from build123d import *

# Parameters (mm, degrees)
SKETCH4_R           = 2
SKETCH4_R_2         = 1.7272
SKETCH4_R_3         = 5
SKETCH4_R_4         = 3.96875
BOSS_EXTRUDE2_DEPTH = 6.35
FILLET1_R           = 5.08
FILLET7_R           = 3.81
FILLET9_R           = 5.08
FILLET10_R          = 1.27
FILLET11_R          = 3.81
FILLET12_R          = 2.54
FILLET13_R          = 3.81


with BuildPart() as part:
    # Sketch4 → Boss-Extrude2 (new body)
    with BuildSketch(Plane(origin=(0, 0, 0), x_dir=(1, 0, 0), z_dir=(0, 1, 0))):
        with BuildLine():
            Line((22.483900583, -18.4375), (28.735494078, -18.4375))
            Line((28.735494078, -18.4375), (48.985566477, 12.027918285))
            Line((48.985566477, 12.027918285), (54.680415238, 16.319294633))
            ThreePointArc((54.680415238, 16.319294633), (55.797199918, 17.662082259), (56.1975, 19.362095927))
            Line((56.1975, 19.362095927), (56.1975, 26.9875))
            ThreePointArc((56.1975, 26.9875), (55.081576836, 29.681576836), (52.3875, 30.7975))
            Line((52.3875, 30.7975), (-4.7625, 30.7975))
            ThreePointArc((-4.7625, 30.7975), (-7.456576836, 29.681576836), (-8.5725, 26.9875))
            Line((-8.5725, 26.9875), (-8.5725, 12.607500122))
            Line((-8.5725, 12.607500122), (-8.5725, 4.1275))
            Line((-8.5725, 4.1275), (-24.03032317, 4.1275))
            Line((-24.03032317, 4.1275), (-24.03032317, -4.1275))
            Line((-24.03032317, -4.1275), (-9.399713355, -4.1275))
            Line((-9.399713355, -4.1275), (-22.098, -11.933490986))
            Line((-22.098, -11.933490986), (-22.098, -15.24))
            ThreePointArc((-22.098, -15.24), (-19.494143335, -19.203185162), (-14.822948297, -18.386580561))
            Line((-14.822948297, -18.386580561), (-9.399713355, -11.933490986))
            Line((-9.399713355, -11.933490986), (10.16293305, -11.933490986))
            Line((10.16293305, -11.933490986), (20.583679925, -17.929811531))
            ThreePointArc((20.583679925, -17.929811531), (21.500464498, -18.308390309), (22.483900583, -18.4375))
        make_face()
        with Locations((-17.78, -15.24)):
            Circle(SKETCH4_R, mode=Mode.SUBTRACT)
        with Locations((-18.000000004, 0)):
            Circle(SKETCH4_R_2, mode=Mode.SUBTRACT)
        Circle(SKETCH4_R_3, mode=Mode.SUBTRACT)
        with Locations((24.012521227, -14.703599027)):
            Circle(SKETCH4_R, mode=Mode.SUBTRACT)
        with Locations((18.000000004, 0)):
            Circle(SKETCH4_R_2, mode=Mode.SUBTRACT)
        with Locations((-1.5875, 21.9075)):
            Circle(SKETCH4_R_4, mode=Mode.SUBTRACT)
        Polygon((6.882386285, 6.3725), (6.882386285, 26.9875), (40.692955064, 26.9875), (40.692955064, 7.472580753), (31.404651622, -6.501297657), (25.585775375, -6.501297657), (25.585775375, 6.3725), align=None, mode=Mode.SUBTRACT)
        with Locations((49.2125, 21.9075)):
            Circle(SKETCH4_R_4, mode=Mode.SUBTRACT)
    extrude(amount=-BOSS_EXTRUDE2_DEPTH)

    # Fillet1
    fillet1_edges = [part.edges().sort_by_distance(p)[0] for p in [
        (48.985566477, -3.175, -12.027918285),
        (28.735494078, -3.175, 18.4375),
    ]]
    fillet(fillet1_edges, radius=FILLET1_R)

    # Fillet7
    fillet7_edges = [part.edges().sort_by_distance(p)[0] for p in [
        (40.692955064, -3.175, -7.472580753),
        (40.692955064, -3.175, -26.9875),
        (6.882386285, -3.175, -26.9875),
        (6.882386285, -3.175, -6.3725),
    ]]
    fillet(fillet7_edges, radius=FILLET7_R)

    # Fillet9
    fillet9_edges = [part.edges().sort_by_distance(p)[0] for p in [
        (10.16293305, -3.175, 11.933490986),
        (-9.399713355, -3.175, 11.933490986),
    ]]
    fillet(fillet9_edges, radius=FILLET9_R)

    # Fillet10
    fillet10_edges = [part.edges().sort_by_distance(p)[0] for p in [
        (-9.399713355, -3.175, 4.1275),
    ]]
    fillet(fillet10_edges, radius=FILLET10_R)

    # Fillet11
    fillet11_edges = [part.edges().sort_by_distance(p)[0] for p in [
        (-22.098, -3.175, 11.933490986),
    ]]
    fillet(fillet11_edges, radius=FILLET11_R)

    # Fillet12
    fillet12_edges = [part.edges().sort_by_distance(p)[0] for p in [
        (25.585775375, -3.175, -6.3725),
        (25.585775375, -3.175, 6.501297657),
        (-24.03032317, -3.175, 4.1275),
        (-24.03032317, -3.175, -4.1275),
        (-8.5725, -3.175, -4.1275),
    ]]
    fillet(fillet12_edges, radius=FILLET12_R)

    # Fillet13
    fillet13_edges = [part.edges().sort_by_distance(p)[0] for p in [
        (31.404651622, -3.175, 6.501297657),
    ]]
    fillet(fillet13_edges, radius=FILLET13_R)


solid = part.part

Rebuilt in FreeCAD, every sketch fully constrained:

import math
import FreeCAD as App
import Part
import Sketcher
from FreeCAD import Vector
Q = App.Units.Quantity


def edges_at(feature, points):
    """Names of the edges that pass closest to the given points."""
    edges = feature.Shape.Edges
    near = lambda p: min(range(len(edges)), key=lambda i: edges[i].distToShape(Part.Vertex(*p))[0])
    return sorted({f"Edge{near(p) + 1}" for p in points})


def add_polygon(sketch, points):
    """Adds a closed chain of lines whose ends are joined by coincident constraints."""
    first, n = sketch.GeometryCount, len(points)
    for a, b in zip(points, points[1:] + points[:1]):
        sketch.addGeometry(Part.LineSegment(App.Vector(*a, 0), App.Vector(*b, 0)), False)
    for i in range(n):
        sketch.addConstraint(Sketcher.Constraint("Coincident", first + i, 2, first + (i + 1) % n, 1))

doc = App.newDocument("Part")
body = doc.addObject("PartDesign::Body", "Body")

sketch1 = doc.addObject("Sketcher::SketchObject", "Sketch")
body.addObject(sketch1)
sketch1.AttachmentSupport = (doc.XZ_Plane, [""])
sketch1.MapMode = "FlatFace"
sketch1.addGeometry(Part.LineSegment(Vector(22.5, 18.4, 0), Vector(28.7, 18.4, 0)), False)
sketch1.addGeometry(Part.LineSegment(Vector(28.7, 18.4, 0), Vector(49, -12, 0)), False)
sketch1.addGeometry(Part.LineSegment(Vector(49, -12, 0), Vector(54.7, -16.3, 0)), False)
sketch1.addGeometry(Part.ArcOfCircle(Part.Circle(Vector(52.4, -19.4, 0), Vector(0, 0, 1), 3.8), math.radians(0), math.radians(53)), False)
sketch1.addGeometry(Part.LineSegment(Vector(56.2, -19.4, 0), Vector(56.2, -27, 0)), False)
sketch1.addGeometry(Part.ArcOfCircle(Part.Circle(Vector(52.4, -27, 0), Vector(0, 0, 1), 3.8), math.radians(-90), math.radians(0)), False)
sketch1.addGeometry(Part.LineSegment(Vector(52.4, -30.8, 0), Vector(-4.8, -30.8, 0)), False)
sketch1.addGeometry(Part.ArcOfCircle(Part.Circle(Vector(-4.8, -27, 0), Vector(0, 0, 1), 3.8), math.radians(-180), math.radians(-90)), False)
sketch1.addGeometry(Part.LineSegment(Vector(-8.6, -27, 0), Vector(-8.6, -4.1, 0)), False)
sketch1.addGeometry(Part.LineSegment(Vector(-8.6, -4.1, 0), Vector(-24, -4.1, 0)), False)
sketch1.addGeometry(Part.LineSegment(Vector(-24, -4.1, 0), Vector(-24, 4.1, 0)), False)
sketch1.addGeometry(Part.LineSegment(Vector(-24, 4.1, 0), Vector(-9.4, 4.1, 0)), False)
sketch1.addGeometry(Part.LineSegment(Vector(-9.4, 4.1, 0), Vector(-22.1, 11.9, 0)), False)
sketch1.addGeometry(Part.LineSegment(Vector(-22.1, 11.9, 0), Vector(-22.1, 15.2, 0)), False)
sketch1.addGeometry(Part.ArcOfCircle(Part.Circle(Vector(-17.8, 15.2, 0), Vector(0, 0, 1), 4.3), math.radians(47), math.radians(180)), False)
sketch1.addGeometry(Part.LineSegment(Vector(-14.8, 18.4, 0), Vector(-9.4, 11.9, 0)), False)
sketch1.addGeometry(Part.LineSegment(Vector(-9.4, 11.9, 0), Vector(10.2, 11.9, 0)), False)
sketch1.addGeometry(Part.LineSegment(Vector(10.2, 11.9, 0), Vector(20.6, 17.9, 0)), False)
sketch1.addGeometry(Part.ArcOfCircle(Part.Circle(Vector(22.5, 14.6, 0), Vector(0, 0, 1), 3.8), math.radians(90), math.radians(120)), False)
sketch1.addGeometry(Part.Circle(Vector(-17.8, 15.2, 0), Vector(0, 0, 1), 2), False)
sketch1.addGeometry(Part.Circle(Vector(-18, 0, 0), Vector(0, 0, 1), 1.7), False)
sketch1.addGeometry(Part.Circle(Vector(0, 0, 0), Vector(0, 0, 1), 5), False)
sketch1.addGeometry(Part.Circle(Vector(24, 14.7, 0), Vector(0, 0, 1), 2), False)
sketch1.addGeometry(Part.Circle(Vector(18, 0, 0), Vector(0, 0, 1), 1.7), False)
sketch1.addGeometry(Part.Circle(Vector(-1.6, -21.9, 0), Vector(0, 0, 1), 4), False)
add_polygon(sketch1, [(25.6, -6.4), (6.9, -6.4), (6.9, -27), (40.7, -27), (40.7, -7.5), (31.4, 6.5), (25.6, 6.5)])
sketch1.addGeometry(Part.Circle(Vector(49.2, -21.9, 0), Vector(0, 0, 1), 4), False)
sketch1.addConstraint([
    Sketcher.Constraint("Coincident", 0, 2, 1, 1),
    Sketcher.Constraint("Coincident", 1, 2, 2, 1),
    Sketcher.Constraint("Tangent", 2, 2, 3, 2),
    Sketcher.Constraint("Tangent", 3, 1, 4, 1),
    Sketcher.Constraint("Tangent", 4, 2, 5, 2),
    Sketcher.Constraint("Tangent", 5, 1, 6, 1),
    Sketcher.Constraint("Tangent", 6, 2, 7, 2),
    Sketcher.Constraint("Tangent", 7, 1, 8, 1),
    Sketcher.Constraint("Coincident", 8, 2, 9, 1),
    Sketcher.Constraint("Coincident", 9, 2, 10, 1),
    Sketcher.Constraint("Coincident", 10, 2, 11, 1),
    Sketcher.Constraint("Coincident", 11, 2, 12, 1),
    Sketcher.Constraint("Coincident", 12, 2, 13, 1),
    Sketcher.Constraint("Tangent", 13, 2, 14, 2),
    Sketcher.Constraint("Coincident", 14, 1, 15, 1),
    Sketcher.Constraint("Coincident", 15, 2, 16, 1),
    Sketcher.Constraint("Coincident", 16, 2, 17, 1),
    Sketcher.Constraint("Tangent", 17, 2, 18, 2),
    Sketcher.Constraint("Tangent", 18, 1, 0, 1),
    Sketcher.Constraint("Horizontal", 0),
    Sketcher.Constraint("Vertical", 4),
    Sketcher.Constraint("Horizontal", 6),
    Sketcher.Constraint("Vertical", 8),
    Sketcher.Constraint("Horizontal", 9),
    Sketcher.Constraint("Vertical", 10),
    Sketcher.Constraint("Horizontal", 11),
    Sketcher.Constraint("Vertical", 13),
    Sketcher.Constraint("Horizontal", 16),
    Sketcher.Constraint("Horizontal", 25),
    Sketcher.Constraint("Vertical", 26),
    Sketcher.Constraint("Horizontal", 27),
    Sketcher.Constraint("Vertical", 28),
    Sketcher.Constraint("Horizontal", 30),
    Sketcher.Constraint("Vertical", 31),
    Sketcher.Constraint("Coincident", 21, 3, -1, 1),
    Sketcher.Constraint("Coincident", 19, 3, 14, 3),
    Sketcher.Constraint("Equal", 3, 5),
    Sketcher.Constraint("Equal", 5, 7),
    Sketcher.Constraint("Equal", 7, 18),
    Sketcher.Constraint("Equal", 19, 22),
    Sketcher.Constraint("Equal", 20, 23),
    Sketcher.Constraint("Equal", 24, 32),
    Sketcher.Constraint("Symmetric", 20, 3, 23, 3, -1, 1),
    Sketcher.Constraint("PointOnObject", 20, 3, -1),
    Sketcher.Constraint("Parallel", 1, 29),
    Sketcher.Constraint("Horizontal", 24, 3, 32, 3),
    Sketcher.Constraint("Horizontal", 12, 2, 15, 2),
    Sketcher.Constraint("Horizontal", 7, 1, 26, 2),
    Sketcher.Constraint("Vertical", 11, 2, 15, 2),
    Sketcher.Constraint("Radius", 3, Q("0.15 in")),
    Sketcher.Constraint("Radius", 14, Q("0.17 in")),
    Sketcher.Constraint("Diameter", 20, Q("0.136 in")),
    Sketcher.Constraint("Diameter", 24, Q("0.3125 in")),
    Sketcher.Constraint("DistanceY", 8, 1, 8, 2, Q("0.9 in")),
    Sketcher.Constraint("Angle", 2, Q("-37 deg")),
    Sketcher.Constraint("DistanceX", 6, 2, 6, 1, Q("2.25 in")),
    Sketcher.Constraint("DistanceX", 14, 3, -1, 1, Q("0.7 in")),
    Sketcher.Constraint("DistanceY", -1, 1, 14, 3, Q("0.6 in")),
    Sketcher.Constraint("DistanceY", 7, 3, 24, 3, Q("0.2 in")),
    Sketcher.Constraint("Diameter", 19, Q("4 mm")),
    Sketcher.Constraint("Diameter", 21, Q("10 mm")),
    Sketcher.Constraint("DistanceY", 10, 1, 10, 2, Q("0.325 in")),
    Sketcher.Constraint("DistanceX", -1, 1, 3, 3, Q("2.0625 in")),
    Sketcher.Constraint("DistanceY", 5, 3, -1, 1, Q("1.0625 in")),
    Sketcher.Constraint("DistanceX", 24, 3, -1, 1, Q("0.0625 in")),
    Sketcher.Constraint("DistanceX", -1, 1, 32, 3, Q("1.9375 in")),
    Sketcher.Constraint("DistanceY", 26, 2, 26, 1, Q("20.615 mm")),
    Sketcher.Constraint("DistanceX", 11, 1, 11, 2, Q("14.63061 mm")),
    Sketcher.Constraint("DistanceX", 25, 2, 25, 1, Q("18.703389 mm")),
    Sketcher.Constraint("DistanceX", 27, 1, 27, 2, Q("33.810569 mm")),
    Sketcher.Constraint("DistanceY", 13, 1, 13, 2, Q("3.306509 mm")),
    Sketcher.Constraint("DistanceY", 28, 1, 28, 2, Q("19.514919 mm")),
    Sketcher.Constraint("DistanceX", -1, 1, 18, 3, Q("22.483901 mm")),
    Sketcher.Constraint("DistanceY", -1, 1, 18, 3, Q("14.6275 mm")),
    Sketcher.Constraint("DistanceX", 20, 3, -1, 1, Q("18 mm")),
    Sketcher.Constraint("DistanceY", -1, 1, 22, 3, Q("14.703599 mm")),
    Sketcher.Constraint("DistanceY", 29, 2, 22, 3, Q("8.202301 mm")),
    Sketcher.Constraint("Distance", 29, Q("16.779209 mm")),
    Sketcher.Constraint("DistanceX", 0, 1, 0, 2, Q("6.251593 mm")),
    Sketcher.Constraint("DistanceX", 9, 2, 9, 1, Q("15.457823 mm")),
    Sketcher.Constraint("DistanceX", 16, 1, 16, 2, Q("19.562646 mm")),
    Sketcher.Constraint("DistanceY", 4, 2, 4, 1, Q("7.625404 mm")),
    Sketcher.Constraint("DistanceX", -1, 1, 22, 3, Q("24.012521 mm")),
    Sketcher.Constraint("DistanceX", 14, 1, -1, 1, Q("14.822948 mm")),
    Sketcher.Constraint("DistanceX", -1, 1, 29, 2, Q("31.404652 mm")),
])
pad1 = doc.addObject("PartDesign::Pad", "Pad")
body.addObject(pad1)
pad1.Profile = sketch1
pad1.Length = Q("0.25 in")
doc.recompute()

fillet = doc.addObject("PartDesign::Fillet", "Fillet")
body.addObject(fillet)
fillet.Base = (pad1, edges_at(pad1, [(48.986, -3.175, -12.028), (28.735, -3.175, 18.438)]))
fillet.Radius = Q("0.2 in")
doc.recompute()

fillet2 = doc.addObject("PartDesign::Fillet", "Fillet001")
body.addObject(fillet2)
fillet2.Base = (fillet, edges_at(fillet, [
    (40.693, -3.175, -7.473),
    (40.693, -3.175, -26.988),
    (6.882, -3.175, -26.988),
    (6.882, -3.175, -6.372),
]))
fillet2.Radius = Q("0.15 in")
doc.recompute()

fillet3 = doc.addObject("PartDesign::Fillet", "Fillet002")
body.addObject(fillet3)
fillet3.Base = (fillet2, edges_at(fillet2, [(10.163, -3.175, 11.933), (-9.4, -3.175, 11.933)]))
fillet3.Radius = Q("0.2 in")
doc.recompute()

fillet4 = doc.addObject("PartDesign::Fillet", "Fillet003")
body.addObject(fillet4)
fillet4.Base = (fillet3, edges_at(fillet3, [(-9.4, -3.175, 4.128)]))
fillet4.Radius = Q("0.05 in")
doc.recompute()

fillet5 = doc.addObject("PartDesign::Fillet", "Fillet004")
body.addObject(fillet5)
fillet5.Base = (fillet4, edges_at(fillet4, [(-22.098, -3.175, 11.933)]))
fillet5.Radius = Q("0.15 in")
doc.recompute()

fillet6 = doc.addObject("PartDesign::Fillet", "Fillet005")
body.addObject(fillet6)
fillet6.Base = (fillet5, edges_at(fillet5, [
    (25.586, -3.175, -6.372),
    (25.586, -3.175, 6.501),
    (-24.03, -3.175, 4.128),
    (-24.03, -3.175, -4.128),
    (-8.572, -3.175, -4.128),
]))
fillet6.Radius = Q("0.1 in")
doc.recompute()

fillet7 = doc.addObject("PartDesign::Fillet", "Fillet006")
body.addObject(fillet7)
fillet7.Base = (fillet6, edges_at(fillet6, [(31.405, -3.175, 6.501)]))
fillet7.Radius = Q("0.15 in")

doc.recompute()
